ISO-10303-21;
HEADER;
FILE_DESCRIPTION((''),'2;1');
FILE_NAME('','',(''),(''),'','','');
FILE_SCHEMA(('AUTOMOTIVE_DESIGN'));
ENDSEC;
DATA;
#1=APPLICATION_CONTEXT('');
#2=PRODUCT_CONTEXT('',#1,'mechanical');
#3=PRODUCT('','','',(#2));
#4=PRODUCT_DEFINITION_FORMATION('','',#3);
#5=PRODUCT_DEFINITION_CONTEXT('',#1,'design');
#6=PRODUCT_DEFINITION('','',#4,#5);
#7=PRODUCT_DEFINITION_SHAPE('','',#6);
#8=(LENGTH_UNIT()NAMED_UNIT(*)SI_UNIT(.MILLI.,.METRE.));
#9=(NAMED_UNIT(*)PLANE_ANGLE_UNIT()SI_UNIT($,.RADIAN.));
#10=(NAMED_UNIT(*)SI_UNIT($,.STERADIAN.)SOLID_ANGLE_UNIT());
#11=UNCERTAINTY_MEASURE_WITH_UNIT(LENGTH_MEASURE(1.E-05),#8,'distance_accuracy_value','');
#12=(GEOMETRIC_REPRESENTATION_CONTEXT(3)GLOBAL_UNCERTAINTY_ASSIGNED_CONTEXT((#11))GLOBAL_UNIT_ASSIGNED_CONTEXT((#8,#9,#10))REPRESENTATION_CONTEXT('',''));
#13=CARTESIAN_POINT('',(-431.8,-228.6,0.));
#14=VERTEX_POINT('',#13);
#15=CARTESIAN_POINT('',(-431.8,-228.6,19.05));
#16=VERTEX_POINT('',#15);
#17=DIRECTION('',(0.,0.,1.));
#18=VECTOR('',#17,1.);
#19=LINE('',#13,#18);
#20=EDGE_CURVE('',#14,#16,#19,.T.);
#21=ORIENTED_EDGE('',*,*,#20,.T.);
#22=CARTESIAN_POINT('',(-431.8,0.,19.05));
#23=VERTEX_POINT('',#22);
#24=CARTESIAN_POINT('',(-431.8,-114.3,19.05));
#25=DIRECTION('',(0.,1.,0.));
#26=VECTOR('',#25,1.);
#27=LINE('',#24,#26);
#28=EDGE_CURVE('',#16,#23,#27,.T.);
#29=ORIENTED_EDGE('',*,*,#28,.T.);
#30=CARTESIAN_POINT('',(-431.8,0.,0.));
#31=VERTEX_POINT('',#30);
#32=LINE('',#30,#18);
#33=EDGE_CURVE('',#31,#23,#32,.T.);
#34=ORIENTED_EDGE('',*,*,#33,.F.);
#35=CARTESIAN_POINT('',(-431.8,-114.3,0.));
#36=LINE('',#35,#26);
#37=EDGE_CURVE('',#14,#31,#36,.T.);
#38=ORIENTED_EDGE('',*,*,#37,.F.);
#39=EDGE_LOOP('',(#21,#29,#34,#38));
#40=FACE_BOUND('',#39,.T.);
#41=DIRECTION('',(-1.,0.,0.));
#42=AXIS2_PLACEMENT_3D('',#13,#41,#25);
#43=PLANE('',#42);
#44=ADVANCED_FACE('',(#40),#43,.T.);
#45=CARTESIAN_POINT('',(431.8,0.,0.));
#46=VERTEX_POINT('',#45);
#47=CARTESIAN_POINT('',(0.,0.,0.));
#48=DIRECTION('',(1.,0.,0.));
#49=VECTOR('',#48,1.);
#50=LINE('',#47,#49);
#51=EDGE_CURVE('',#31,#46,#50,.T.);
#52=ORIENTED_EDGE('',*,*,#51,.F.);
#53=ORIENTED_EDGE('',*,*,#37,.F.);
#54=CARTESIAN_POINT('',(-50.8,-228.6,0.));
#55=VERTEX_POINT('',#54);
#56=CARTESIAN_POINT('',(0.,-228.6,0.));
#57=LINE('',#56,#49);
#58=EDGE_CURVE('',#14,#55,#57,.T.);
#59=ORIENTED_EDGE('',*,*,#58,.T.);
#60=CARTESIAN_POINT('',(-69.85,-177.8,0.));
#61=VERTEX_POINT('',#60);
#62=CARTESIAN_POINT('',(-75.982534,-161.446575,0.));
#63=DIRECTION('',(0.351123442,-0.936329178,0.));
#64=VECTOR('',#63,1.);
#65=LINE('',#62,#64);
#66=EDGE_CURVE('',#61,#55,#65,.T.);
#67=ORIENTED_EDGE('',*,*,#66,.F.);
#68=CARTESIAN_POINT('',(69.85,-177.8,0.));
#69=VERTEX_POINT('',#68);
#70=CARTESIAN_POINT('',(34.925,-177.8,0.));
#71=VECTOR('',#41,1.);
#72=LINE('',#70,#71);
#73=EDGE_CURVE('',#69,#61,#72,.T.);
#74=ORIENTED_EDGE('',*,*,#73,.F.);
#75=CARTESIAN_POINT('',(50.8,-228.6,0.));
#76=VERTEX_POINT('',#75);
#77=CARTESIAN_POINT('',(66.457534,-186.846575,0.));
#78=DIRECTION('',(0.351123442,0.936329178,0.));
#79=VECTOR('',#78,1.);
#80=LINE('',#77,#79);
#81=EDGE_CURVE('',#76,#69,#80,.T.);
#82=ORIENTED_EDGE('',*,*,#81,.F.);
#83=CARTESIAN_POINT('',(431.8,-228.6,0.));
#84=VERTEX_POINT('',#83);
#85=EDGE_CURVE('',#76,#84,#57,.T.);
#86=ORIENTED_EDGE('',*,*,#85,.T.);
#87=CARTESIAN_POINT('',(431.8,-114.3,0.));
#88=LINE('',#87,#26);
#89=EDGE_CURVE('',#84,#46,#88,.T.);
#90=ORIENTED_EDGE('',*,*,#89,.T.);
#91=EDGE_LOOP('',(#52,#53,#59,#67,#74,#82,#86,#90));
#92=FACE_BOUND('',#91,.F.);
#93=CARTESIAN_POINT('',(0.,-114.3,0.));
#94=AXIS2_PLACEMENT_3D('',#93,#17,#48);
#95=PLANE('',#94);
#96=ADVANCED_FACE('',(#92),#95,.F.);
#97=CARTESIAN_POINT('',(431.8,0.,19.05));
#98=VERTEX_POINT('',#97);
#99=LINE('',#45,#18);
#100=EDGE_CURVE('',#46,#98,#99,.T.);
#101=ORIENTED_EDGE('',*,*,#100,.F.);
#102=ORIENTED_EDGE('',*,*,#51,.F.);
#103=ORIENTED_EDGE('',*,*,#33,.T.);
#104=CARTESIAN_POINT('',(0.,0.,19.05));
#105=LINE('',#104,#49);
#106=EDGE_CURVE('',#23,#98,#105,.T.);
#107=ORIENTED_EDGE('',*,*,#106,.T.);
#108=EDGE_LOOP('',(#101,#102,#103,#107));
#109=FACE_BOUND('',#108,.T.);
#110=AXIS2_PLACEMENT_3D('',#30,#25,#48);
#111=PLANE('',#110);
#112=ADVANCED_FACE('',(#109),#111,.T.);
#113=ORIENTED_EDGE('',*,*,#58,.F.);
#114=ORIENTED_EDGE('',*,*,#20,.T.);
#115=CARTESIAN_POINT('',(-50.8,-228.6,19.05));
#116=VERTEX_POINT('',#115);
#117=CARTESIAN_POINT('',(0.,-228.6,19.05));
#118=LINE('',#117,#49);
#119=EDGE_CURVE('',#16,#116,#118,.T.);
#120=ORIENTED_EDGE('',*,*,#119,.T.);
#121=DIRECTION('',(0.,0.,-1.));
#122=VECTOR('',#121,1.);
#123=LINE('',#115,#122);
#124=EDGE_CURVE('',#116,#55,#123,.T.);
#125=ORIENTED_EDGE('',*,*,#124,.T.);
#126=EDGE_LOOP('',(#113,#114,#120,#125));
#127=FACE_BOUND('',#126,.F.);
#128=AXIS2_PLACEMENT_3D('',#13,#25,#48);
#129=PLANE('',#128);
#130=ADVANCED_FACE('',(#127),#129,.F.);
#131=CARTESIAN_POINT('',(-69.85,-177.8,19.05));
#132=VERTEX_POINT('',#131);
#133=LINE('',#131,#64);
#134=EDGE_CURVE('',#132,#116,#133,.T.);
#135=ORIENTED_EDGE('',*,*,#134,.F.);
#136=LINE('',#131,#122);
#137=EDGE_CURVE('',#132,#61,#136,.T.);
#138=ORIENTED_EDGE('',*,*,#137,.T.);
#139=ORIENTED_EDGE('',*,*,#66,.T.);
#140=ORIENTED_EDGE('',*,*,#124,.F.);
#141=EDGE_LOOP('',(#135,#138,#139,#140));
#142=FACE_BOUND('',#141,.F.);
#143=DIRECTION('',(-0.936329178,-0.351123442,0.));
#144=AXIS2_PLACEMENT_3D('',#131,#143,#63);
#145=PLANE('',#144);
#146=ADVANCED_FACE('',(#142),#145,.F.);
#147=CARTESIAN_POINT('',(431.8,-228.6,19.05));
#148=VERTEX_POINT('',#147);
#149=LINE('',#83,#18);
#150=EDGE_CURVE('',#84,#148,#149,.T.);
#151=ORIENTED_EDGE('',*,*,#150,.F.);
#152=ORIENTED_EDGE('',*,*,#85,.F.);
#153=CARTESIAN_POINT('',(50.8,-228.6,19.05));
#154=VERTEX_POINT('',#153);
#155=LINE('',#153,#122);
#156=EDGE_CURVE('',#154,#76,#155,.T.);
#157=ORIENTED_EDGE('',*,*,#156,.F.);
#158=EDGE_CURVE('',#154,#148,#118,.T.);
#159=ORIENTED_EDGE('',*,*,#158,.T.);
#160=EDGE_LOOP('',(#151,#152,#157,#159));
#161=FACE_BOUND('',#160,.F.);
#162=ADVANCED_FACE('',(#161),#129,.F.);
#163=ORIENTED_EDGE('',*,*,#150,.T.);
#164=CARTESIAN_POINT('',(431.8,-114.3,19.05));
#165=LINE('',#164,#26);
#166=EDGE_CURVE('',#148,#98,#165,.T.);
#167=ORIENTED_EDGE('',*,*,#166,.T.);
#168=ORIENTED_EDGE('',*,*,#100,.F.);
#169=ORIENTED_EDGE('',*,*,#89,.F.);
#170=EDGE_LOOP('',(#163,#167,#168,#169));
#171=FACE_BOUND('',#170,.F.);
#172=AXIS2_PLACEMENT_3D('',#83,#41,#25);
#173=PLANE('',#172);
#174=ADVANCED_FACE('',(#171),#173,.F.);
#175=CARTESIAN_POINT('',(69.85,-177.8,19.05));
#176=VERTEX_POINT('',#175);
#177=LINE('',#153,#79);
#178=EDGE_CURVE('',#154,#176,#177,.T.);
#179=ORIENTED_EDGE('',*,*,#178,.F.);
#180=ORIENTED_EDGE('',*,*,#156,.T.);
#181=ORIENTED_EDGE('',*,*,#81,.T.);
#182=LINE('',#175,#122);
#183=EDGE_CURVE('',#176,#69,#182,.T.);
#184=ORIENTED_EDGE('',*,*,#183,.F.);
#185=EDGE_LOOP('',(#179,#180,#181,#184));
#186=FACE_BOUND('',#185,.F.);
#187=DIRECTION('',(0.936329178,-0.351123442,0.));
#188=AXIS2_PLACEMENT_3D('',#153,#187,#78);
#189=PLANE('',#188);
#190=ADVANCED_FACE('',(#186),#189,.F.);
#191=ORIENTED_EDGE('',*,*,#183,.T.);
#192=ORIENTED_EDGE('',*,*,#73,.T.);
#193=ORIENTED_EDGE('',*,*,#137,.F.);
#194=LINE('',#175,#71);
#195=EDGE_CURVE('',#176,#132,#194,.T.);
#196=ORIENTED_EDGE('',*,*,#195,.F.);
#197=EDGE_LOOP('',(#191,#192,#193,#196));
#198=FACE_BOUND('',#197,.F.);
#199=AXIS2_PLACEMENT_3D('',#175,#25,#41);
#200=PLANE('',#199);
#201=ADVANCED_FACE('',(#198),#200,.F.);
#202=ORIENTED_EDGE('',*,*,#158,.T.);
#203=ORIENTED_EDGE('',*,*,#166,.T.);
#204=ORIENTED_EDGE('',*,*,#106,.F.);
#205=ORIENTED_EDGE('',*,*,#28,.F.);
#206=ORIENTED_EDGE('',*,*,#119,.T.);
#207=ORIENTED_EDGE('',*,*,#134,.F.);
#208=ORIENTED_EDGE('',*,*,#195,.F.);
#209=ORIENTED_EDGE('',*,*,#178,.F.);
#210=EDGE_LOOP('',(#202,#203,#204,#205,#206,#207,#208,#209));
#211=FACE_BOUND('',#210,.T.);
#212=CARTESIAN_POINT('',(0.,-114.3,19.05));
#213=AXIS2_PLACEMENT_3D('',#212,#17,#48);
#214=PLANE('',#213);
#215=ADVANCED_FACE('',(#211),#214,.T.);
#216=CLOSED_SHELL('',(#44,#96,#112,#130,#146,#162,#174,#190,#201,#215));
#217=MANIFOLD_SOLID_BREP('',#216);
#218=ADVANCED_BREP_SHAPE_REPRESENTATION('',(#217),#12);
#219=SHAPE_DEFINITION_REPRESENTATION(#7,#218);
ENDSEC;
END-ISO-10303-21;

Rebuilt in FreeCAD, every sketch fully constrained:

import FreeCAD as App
import Part
import Sketcher
from FreeCAD import Vector
Q = App.Units.Quantity

doc = App.newDocument("Part")
body = doc.addObject("PartDesign::Body", "Body")

sketch1 = body.newObject("Sketcher::SketchObject", "Sketch")
sketch1.AttachmentSupport = (doc.getObject("XY_Plane"), [""])
sketch1.MapMode = "FlatFace"
sketch1.addGeometry([
    Part.LineSegment(Vector(-432, 0, 0), Vector(-432, -229, 0)),
    Part.LineSegment(Vector(-432, -229, 0), Vector(432, -229, 0)),
    Part.LineSegment(Vector(432, -229, 0), Vector(432, 0, 0)),
    Part.LineSegment(Vector(432, 0, 0), Vector(-432, 0, 0)),
], False)
sketch1.addConstraint([
    Sketcher.Constraint("Coincident", 0, 2, 1, 1),
    Sketcher.Constraint("Coincident", 1, 2, 2, 1),
    Sketcher.Constraint("Coincident", 2, 2, 3, 1),
    Sketcher.Constraint("Coincident", 3, 2, 0, 1),
    Sketcher.Constraint("Vertical", 0),
    Sketcher.Constraint("Horizontal", 1),
    Sketcher.Constraint("Vertical", 2),
    Sketcher.Constraint("Horizontal", 3),
    Sketcher.Constraint("Symmetric", 2, 2, 3, 2, -1, 1),
    Sketcher.Constraint("DistanceX", 1, 1, 1, 2, Q("34 in")),
    Sketcher.Constraint("DistanceY", 0, 2, 0, 1, Q("9 in")),
])
pad1 = body.newObject("PartDesign::Pad", "Pad")
pad1.Profile = sketch1
pad1.Length = Q("0.75 in")

sketch2 = body.newObject("Sketcher::SketchObject", "Sketch001")
sketch2.AttachmentSupport = (doc.getObject("XY_Plane"), [""])
sketch2.MapMode = "FlatFace"
sketch2.AttachmentOffset = App.Placement(Vector(0, 0, 0.75 * 25.4), App.Rotation())
sketch2.addGeometry([
    Part.LineSegment(Vector(-70, -178, 0), Vector(-51, -229, 0)),
    Part.LineSegment(Vector(-51, -229, 0), Vector(51, -229, 0)),
    Part.LineSegment(Vector(51, -229, 0), Vector(70, -178, 0)),
    Part.LineSegment(Vector(70, -178, 0), Vector(-70, -178, 0)),
], False)
sketch2.addConstraint([
    Sketcher.Constraint("Coincident", 0, 2, 1, 1),
    Sketcher.Constraint("Coincident", 1, 2, 2, 1),
    Sketcher.Constraint("Coincident", 2, 2, 3, 1),
    Sketcher.Constraint("Coincident", 3, 2, 0, 1),
    Sketcher.Constraint("Horizontal", 1),
    Sketcher.Constraint("Horizontal", 3),
    Sketcher.Constraint("Equal", 0, 2),
    Sketcher.Constraint("DistanceX", 1, 1, 1, 2, Q("4 in")),
    Sketcher.Constraint("DistanceX", 3, 2, 3, 1, Q("5.5 in")),
    Sketcher.Constraint("DistanceX", 0, 2, -1, 1, Q("2 in")),
    Sketcher.Constraint("DistanceY", 0, 2, -1, 1, Q("9 in")),
    Sketcher.Constraint("DistanceY", 2, 2, -1, 1, Q("7 in")),
])
pocket1 = body.newObject("PartDesign::Pocket", "Pocket")
pocket1.Profile = sketch2
pocket1.Type = "ThroughAll"

doc.recompute()
